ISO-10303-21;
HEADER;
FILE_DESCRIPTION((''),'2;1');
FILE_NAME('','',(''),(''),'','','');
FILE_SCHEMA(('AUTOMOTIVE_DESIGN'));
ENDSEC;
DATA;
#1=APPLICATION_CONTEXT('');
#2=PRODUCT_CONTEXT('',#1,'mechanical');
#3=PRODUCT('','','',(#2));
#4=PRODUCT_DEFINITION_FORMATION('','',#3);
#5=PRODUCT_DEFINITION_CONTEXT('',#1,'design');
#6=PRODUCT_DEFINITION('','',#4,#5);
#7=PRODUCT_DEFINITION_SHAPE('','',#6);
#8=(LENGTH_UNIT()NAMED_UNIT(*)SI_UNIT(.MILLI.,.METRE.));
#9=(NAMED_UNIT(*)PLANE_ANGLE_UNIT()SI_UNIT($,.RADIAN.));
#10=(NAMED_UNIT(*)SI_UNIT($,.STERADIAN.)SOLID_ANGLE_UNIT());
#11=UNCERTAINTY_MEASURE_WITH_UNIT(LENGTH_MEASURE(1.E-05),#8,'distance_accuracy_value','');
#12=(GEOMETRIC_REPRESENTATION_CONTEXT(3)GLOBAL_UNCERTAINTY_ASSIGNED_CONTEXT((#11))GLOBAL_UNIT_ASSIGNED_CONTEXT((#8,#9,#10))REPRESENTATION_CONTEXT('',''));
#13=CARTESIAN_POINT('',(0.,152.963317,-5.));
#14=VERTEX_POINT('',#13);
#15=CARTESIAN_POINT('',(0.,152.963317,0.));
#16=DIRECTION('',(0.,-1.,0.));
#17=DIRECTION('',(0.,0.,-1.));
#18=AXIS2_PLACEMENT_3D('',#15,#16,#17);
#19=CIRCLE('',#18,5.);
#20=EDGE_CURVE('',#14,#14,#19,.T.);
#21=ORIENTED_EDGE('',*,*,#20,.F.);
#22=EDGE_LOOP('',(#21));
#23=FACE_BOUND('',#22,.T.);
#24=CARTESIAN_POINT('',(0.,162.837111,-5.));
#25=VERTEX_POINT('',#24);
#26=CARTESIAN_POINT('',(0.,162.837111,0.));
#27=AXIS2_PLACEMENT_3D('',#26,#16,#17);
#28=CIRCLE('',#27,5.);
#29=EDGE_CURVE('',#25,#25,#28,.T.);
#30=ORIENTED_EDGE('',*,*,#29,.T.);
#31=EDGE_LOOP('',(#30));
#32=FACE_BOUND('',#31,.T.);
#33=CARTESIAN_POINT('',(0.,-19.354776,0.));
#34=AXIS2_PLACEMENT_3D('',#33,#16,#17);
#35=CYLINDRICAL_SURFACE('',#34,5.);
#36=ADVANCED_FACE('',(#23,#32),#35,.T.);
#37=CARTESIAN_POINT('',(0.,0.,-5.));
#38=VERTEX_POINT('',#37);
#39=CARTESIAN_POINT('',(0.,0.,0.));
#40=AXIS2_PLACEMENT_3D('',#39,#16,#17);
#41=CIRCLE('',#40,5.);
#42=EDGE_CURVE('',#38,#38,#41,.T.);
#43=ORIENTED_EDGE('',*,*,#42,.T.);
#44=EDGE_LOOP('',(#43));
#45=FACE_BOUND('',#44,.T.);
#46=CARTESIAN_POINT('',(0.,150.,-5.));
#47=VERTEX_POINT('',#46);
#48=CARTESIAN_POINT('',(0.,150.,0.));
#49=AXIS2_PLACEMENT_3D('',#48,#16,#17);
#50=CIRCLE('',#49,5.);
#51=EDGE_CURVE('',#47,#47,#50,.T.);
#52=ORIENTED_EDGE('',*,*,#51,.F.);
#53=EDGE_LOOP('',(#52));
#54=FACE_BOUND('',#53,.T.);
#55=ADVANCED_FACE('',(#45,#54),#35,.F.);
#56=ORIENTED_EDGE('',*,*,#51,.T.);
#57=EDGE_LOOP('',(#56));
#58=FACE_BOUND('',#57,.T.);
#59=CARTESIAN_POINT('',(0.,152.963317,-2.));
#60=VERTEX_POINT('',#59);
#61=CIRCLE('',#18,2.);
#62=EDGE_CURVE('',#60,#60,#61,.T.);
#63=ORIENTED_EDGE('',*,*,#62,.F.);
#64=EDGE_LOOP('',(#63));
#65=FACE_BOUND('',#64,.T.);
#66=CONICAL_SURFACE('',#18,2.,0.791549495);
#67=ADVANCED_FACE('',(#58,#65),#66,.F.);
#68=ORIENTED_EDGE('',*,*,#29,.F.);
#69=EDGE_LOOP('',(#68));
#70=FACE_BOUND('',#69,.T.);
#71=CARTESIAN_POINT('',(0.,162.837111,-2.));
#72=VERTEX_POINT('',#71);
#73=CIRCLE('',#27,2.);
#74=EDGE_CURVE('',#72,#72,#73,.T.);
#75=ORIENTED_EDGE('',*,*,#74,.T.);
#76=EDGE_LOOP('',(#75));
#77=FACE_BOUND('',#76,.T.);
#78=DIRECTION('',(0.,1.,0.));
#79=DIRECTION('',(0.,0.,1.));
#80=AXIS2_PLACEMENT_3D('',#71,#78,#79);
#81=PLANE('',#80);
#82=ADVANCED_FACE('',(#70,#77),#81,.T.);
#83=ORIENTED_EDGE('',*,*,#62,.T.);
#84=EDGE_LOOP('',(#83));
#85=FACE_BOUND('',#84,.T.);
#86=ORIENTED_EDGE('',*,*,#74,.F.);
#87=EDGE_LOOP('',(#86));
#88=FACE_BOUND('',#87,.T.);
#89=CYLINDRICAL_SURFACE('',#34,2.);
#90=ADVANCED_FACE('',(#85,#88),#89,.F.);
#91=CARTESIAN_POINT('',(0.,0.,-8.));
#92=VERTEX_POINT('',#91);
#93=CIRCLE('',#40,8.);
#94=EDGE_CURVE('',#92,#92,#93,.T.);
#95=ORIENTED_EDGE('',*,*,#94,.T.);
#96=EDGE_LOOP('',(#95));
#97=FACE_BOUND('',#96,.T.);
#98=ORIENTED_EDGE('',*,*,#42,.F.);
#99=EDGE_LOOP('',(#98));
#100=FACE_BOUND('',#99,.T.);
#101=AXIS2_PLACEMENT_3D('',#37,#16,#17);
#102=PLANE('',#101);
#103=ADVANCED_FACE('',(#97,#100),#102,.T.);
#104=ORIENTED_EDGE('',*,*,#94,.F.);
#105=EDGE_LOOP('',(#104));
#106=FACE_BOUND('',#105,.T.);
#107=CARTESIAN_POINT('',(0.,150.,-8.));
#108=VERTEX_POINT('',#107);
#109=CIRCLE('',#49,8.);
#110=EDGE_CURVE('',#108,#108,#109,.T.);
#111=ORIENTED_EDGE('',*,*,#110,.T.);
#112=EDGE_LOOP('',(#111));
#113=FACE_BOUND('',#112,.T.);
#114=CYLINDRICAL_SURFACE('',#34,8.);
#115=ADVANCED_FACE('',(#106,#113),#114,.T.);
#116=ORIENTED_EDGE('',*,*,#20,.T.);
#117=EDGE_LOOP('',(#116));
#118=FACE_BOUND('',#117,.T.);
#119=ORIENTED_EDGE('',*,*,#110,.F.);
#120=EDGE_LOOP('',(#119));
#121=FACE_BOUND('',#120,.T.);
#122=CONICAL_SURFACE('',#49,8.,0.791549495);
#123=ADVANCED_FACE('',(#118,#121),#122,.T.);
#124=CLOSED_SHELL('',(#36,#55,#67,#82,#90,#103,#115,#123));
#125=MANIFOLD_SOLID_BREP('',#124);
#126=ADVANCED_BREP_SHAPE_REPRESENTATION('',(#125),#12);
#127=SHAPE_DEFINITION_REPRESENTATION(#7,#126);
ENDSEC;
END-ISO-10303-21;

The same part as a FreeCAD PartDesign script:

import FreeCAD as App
import Part
import Sketcher

V = App.Vector


def add_polygon(sketch, points):
    """Adds a closed chain of lines whose ends are joined by coincident constraints."""
    first, n = sketch.GeometryCount, len(points)
    for a, b in zip(points, points[1:] + points[:1]):
        sketch.addGeometry(Part.LineSegment(App.Vector(*a, 0), App.Vector(*b, 0)), False)
    for i in range(n):
        sketch.addConstraint(Sketcher.Constraint("Coincident", first + i, 2, first + (i + 1) % n, 1))

doc = App.newDocument("Part")
params = doc.addObject("Spreadsheet::Sheet", "Params")
for row, (alias, value) in enumerate([
    ("sketch1_width", "150 mm"),
    ("sketch1_height", "3 mm"),
    ("revolution_angle", "360 deg"),
], start=1):
    params.set(f"A{row}", alias)
    params.set(f"B{row}", "=" + value)
    params.setAlias(f"B{row}", alias)

body = doc.addObject("PartDesign::Body", "Body")

sketch1 = body.newObject("Sketcher::SketchObject", "Sketch")
sketch1.AttachmentSupport = (doc.getObject("YZ_Plane"), [""])
sketch1.MapMode = "FlatFace"
add_polygon(sketch1, [(153, -2), (150, -5), (0, -5), (0, -8), (150, -8), (153, -5), (162.8, -5), (162.8, -2)])
sketch1.addConstraint([
    Sketcher.Constraint("Horizontal", 1),
    Sketcher.Constraint("Vertical", 2),
    Sketcher.Constraint("Horizontal", 3),
    Sketcher.Constraint("Horizontal", 5),
    Sketcher.Constraint("Vertical", 6),
    Sketcher.Constraint("Horizontal", 7),
    Sketcher.Constraint("PointOnObject", 1, 2, -2),
    Sketcher.Constraint("Parallel", 0, 4),
    Sketcher.Constraint("Horizontal", 1, 2, 4, 2),
    Sketcher.Constraint("Vertical", 0, 2, 3, 2),
    Sketcher.Constraint("Vertical", 4, 2, 7, 2),
    Sketcher.Constraint("DistanceX", 1, 2, 1, 1, 150.0),
    Sketcher.Constraint("DistanceY", 2, 2, 2, 1, 3.0),
    Sketcher.Constraint("DistanceY", 0, 2, -1, 1, 5.0),
    Sketcher.Constraint("Distance", 0, 4.216782),
    Sketcher.Constraint("DistanceX", 5, 1, 5, 2, 9.873794),
])
sketch1.setExpression("Constraints[19]", "Params.sketch1_width")
sketch1.setExpression("Constraints[20]", "Params.sketch1_height")
revolution = body.newObject("PartDesign::Revolution", "Revolution")
revolution.Profile = sketch1
revolution.ReferenceAxis = (sketch1, ["H_Axis"])
revolution.setExpression("Angle", "Params.revolution_angle")

doc.recompute()
